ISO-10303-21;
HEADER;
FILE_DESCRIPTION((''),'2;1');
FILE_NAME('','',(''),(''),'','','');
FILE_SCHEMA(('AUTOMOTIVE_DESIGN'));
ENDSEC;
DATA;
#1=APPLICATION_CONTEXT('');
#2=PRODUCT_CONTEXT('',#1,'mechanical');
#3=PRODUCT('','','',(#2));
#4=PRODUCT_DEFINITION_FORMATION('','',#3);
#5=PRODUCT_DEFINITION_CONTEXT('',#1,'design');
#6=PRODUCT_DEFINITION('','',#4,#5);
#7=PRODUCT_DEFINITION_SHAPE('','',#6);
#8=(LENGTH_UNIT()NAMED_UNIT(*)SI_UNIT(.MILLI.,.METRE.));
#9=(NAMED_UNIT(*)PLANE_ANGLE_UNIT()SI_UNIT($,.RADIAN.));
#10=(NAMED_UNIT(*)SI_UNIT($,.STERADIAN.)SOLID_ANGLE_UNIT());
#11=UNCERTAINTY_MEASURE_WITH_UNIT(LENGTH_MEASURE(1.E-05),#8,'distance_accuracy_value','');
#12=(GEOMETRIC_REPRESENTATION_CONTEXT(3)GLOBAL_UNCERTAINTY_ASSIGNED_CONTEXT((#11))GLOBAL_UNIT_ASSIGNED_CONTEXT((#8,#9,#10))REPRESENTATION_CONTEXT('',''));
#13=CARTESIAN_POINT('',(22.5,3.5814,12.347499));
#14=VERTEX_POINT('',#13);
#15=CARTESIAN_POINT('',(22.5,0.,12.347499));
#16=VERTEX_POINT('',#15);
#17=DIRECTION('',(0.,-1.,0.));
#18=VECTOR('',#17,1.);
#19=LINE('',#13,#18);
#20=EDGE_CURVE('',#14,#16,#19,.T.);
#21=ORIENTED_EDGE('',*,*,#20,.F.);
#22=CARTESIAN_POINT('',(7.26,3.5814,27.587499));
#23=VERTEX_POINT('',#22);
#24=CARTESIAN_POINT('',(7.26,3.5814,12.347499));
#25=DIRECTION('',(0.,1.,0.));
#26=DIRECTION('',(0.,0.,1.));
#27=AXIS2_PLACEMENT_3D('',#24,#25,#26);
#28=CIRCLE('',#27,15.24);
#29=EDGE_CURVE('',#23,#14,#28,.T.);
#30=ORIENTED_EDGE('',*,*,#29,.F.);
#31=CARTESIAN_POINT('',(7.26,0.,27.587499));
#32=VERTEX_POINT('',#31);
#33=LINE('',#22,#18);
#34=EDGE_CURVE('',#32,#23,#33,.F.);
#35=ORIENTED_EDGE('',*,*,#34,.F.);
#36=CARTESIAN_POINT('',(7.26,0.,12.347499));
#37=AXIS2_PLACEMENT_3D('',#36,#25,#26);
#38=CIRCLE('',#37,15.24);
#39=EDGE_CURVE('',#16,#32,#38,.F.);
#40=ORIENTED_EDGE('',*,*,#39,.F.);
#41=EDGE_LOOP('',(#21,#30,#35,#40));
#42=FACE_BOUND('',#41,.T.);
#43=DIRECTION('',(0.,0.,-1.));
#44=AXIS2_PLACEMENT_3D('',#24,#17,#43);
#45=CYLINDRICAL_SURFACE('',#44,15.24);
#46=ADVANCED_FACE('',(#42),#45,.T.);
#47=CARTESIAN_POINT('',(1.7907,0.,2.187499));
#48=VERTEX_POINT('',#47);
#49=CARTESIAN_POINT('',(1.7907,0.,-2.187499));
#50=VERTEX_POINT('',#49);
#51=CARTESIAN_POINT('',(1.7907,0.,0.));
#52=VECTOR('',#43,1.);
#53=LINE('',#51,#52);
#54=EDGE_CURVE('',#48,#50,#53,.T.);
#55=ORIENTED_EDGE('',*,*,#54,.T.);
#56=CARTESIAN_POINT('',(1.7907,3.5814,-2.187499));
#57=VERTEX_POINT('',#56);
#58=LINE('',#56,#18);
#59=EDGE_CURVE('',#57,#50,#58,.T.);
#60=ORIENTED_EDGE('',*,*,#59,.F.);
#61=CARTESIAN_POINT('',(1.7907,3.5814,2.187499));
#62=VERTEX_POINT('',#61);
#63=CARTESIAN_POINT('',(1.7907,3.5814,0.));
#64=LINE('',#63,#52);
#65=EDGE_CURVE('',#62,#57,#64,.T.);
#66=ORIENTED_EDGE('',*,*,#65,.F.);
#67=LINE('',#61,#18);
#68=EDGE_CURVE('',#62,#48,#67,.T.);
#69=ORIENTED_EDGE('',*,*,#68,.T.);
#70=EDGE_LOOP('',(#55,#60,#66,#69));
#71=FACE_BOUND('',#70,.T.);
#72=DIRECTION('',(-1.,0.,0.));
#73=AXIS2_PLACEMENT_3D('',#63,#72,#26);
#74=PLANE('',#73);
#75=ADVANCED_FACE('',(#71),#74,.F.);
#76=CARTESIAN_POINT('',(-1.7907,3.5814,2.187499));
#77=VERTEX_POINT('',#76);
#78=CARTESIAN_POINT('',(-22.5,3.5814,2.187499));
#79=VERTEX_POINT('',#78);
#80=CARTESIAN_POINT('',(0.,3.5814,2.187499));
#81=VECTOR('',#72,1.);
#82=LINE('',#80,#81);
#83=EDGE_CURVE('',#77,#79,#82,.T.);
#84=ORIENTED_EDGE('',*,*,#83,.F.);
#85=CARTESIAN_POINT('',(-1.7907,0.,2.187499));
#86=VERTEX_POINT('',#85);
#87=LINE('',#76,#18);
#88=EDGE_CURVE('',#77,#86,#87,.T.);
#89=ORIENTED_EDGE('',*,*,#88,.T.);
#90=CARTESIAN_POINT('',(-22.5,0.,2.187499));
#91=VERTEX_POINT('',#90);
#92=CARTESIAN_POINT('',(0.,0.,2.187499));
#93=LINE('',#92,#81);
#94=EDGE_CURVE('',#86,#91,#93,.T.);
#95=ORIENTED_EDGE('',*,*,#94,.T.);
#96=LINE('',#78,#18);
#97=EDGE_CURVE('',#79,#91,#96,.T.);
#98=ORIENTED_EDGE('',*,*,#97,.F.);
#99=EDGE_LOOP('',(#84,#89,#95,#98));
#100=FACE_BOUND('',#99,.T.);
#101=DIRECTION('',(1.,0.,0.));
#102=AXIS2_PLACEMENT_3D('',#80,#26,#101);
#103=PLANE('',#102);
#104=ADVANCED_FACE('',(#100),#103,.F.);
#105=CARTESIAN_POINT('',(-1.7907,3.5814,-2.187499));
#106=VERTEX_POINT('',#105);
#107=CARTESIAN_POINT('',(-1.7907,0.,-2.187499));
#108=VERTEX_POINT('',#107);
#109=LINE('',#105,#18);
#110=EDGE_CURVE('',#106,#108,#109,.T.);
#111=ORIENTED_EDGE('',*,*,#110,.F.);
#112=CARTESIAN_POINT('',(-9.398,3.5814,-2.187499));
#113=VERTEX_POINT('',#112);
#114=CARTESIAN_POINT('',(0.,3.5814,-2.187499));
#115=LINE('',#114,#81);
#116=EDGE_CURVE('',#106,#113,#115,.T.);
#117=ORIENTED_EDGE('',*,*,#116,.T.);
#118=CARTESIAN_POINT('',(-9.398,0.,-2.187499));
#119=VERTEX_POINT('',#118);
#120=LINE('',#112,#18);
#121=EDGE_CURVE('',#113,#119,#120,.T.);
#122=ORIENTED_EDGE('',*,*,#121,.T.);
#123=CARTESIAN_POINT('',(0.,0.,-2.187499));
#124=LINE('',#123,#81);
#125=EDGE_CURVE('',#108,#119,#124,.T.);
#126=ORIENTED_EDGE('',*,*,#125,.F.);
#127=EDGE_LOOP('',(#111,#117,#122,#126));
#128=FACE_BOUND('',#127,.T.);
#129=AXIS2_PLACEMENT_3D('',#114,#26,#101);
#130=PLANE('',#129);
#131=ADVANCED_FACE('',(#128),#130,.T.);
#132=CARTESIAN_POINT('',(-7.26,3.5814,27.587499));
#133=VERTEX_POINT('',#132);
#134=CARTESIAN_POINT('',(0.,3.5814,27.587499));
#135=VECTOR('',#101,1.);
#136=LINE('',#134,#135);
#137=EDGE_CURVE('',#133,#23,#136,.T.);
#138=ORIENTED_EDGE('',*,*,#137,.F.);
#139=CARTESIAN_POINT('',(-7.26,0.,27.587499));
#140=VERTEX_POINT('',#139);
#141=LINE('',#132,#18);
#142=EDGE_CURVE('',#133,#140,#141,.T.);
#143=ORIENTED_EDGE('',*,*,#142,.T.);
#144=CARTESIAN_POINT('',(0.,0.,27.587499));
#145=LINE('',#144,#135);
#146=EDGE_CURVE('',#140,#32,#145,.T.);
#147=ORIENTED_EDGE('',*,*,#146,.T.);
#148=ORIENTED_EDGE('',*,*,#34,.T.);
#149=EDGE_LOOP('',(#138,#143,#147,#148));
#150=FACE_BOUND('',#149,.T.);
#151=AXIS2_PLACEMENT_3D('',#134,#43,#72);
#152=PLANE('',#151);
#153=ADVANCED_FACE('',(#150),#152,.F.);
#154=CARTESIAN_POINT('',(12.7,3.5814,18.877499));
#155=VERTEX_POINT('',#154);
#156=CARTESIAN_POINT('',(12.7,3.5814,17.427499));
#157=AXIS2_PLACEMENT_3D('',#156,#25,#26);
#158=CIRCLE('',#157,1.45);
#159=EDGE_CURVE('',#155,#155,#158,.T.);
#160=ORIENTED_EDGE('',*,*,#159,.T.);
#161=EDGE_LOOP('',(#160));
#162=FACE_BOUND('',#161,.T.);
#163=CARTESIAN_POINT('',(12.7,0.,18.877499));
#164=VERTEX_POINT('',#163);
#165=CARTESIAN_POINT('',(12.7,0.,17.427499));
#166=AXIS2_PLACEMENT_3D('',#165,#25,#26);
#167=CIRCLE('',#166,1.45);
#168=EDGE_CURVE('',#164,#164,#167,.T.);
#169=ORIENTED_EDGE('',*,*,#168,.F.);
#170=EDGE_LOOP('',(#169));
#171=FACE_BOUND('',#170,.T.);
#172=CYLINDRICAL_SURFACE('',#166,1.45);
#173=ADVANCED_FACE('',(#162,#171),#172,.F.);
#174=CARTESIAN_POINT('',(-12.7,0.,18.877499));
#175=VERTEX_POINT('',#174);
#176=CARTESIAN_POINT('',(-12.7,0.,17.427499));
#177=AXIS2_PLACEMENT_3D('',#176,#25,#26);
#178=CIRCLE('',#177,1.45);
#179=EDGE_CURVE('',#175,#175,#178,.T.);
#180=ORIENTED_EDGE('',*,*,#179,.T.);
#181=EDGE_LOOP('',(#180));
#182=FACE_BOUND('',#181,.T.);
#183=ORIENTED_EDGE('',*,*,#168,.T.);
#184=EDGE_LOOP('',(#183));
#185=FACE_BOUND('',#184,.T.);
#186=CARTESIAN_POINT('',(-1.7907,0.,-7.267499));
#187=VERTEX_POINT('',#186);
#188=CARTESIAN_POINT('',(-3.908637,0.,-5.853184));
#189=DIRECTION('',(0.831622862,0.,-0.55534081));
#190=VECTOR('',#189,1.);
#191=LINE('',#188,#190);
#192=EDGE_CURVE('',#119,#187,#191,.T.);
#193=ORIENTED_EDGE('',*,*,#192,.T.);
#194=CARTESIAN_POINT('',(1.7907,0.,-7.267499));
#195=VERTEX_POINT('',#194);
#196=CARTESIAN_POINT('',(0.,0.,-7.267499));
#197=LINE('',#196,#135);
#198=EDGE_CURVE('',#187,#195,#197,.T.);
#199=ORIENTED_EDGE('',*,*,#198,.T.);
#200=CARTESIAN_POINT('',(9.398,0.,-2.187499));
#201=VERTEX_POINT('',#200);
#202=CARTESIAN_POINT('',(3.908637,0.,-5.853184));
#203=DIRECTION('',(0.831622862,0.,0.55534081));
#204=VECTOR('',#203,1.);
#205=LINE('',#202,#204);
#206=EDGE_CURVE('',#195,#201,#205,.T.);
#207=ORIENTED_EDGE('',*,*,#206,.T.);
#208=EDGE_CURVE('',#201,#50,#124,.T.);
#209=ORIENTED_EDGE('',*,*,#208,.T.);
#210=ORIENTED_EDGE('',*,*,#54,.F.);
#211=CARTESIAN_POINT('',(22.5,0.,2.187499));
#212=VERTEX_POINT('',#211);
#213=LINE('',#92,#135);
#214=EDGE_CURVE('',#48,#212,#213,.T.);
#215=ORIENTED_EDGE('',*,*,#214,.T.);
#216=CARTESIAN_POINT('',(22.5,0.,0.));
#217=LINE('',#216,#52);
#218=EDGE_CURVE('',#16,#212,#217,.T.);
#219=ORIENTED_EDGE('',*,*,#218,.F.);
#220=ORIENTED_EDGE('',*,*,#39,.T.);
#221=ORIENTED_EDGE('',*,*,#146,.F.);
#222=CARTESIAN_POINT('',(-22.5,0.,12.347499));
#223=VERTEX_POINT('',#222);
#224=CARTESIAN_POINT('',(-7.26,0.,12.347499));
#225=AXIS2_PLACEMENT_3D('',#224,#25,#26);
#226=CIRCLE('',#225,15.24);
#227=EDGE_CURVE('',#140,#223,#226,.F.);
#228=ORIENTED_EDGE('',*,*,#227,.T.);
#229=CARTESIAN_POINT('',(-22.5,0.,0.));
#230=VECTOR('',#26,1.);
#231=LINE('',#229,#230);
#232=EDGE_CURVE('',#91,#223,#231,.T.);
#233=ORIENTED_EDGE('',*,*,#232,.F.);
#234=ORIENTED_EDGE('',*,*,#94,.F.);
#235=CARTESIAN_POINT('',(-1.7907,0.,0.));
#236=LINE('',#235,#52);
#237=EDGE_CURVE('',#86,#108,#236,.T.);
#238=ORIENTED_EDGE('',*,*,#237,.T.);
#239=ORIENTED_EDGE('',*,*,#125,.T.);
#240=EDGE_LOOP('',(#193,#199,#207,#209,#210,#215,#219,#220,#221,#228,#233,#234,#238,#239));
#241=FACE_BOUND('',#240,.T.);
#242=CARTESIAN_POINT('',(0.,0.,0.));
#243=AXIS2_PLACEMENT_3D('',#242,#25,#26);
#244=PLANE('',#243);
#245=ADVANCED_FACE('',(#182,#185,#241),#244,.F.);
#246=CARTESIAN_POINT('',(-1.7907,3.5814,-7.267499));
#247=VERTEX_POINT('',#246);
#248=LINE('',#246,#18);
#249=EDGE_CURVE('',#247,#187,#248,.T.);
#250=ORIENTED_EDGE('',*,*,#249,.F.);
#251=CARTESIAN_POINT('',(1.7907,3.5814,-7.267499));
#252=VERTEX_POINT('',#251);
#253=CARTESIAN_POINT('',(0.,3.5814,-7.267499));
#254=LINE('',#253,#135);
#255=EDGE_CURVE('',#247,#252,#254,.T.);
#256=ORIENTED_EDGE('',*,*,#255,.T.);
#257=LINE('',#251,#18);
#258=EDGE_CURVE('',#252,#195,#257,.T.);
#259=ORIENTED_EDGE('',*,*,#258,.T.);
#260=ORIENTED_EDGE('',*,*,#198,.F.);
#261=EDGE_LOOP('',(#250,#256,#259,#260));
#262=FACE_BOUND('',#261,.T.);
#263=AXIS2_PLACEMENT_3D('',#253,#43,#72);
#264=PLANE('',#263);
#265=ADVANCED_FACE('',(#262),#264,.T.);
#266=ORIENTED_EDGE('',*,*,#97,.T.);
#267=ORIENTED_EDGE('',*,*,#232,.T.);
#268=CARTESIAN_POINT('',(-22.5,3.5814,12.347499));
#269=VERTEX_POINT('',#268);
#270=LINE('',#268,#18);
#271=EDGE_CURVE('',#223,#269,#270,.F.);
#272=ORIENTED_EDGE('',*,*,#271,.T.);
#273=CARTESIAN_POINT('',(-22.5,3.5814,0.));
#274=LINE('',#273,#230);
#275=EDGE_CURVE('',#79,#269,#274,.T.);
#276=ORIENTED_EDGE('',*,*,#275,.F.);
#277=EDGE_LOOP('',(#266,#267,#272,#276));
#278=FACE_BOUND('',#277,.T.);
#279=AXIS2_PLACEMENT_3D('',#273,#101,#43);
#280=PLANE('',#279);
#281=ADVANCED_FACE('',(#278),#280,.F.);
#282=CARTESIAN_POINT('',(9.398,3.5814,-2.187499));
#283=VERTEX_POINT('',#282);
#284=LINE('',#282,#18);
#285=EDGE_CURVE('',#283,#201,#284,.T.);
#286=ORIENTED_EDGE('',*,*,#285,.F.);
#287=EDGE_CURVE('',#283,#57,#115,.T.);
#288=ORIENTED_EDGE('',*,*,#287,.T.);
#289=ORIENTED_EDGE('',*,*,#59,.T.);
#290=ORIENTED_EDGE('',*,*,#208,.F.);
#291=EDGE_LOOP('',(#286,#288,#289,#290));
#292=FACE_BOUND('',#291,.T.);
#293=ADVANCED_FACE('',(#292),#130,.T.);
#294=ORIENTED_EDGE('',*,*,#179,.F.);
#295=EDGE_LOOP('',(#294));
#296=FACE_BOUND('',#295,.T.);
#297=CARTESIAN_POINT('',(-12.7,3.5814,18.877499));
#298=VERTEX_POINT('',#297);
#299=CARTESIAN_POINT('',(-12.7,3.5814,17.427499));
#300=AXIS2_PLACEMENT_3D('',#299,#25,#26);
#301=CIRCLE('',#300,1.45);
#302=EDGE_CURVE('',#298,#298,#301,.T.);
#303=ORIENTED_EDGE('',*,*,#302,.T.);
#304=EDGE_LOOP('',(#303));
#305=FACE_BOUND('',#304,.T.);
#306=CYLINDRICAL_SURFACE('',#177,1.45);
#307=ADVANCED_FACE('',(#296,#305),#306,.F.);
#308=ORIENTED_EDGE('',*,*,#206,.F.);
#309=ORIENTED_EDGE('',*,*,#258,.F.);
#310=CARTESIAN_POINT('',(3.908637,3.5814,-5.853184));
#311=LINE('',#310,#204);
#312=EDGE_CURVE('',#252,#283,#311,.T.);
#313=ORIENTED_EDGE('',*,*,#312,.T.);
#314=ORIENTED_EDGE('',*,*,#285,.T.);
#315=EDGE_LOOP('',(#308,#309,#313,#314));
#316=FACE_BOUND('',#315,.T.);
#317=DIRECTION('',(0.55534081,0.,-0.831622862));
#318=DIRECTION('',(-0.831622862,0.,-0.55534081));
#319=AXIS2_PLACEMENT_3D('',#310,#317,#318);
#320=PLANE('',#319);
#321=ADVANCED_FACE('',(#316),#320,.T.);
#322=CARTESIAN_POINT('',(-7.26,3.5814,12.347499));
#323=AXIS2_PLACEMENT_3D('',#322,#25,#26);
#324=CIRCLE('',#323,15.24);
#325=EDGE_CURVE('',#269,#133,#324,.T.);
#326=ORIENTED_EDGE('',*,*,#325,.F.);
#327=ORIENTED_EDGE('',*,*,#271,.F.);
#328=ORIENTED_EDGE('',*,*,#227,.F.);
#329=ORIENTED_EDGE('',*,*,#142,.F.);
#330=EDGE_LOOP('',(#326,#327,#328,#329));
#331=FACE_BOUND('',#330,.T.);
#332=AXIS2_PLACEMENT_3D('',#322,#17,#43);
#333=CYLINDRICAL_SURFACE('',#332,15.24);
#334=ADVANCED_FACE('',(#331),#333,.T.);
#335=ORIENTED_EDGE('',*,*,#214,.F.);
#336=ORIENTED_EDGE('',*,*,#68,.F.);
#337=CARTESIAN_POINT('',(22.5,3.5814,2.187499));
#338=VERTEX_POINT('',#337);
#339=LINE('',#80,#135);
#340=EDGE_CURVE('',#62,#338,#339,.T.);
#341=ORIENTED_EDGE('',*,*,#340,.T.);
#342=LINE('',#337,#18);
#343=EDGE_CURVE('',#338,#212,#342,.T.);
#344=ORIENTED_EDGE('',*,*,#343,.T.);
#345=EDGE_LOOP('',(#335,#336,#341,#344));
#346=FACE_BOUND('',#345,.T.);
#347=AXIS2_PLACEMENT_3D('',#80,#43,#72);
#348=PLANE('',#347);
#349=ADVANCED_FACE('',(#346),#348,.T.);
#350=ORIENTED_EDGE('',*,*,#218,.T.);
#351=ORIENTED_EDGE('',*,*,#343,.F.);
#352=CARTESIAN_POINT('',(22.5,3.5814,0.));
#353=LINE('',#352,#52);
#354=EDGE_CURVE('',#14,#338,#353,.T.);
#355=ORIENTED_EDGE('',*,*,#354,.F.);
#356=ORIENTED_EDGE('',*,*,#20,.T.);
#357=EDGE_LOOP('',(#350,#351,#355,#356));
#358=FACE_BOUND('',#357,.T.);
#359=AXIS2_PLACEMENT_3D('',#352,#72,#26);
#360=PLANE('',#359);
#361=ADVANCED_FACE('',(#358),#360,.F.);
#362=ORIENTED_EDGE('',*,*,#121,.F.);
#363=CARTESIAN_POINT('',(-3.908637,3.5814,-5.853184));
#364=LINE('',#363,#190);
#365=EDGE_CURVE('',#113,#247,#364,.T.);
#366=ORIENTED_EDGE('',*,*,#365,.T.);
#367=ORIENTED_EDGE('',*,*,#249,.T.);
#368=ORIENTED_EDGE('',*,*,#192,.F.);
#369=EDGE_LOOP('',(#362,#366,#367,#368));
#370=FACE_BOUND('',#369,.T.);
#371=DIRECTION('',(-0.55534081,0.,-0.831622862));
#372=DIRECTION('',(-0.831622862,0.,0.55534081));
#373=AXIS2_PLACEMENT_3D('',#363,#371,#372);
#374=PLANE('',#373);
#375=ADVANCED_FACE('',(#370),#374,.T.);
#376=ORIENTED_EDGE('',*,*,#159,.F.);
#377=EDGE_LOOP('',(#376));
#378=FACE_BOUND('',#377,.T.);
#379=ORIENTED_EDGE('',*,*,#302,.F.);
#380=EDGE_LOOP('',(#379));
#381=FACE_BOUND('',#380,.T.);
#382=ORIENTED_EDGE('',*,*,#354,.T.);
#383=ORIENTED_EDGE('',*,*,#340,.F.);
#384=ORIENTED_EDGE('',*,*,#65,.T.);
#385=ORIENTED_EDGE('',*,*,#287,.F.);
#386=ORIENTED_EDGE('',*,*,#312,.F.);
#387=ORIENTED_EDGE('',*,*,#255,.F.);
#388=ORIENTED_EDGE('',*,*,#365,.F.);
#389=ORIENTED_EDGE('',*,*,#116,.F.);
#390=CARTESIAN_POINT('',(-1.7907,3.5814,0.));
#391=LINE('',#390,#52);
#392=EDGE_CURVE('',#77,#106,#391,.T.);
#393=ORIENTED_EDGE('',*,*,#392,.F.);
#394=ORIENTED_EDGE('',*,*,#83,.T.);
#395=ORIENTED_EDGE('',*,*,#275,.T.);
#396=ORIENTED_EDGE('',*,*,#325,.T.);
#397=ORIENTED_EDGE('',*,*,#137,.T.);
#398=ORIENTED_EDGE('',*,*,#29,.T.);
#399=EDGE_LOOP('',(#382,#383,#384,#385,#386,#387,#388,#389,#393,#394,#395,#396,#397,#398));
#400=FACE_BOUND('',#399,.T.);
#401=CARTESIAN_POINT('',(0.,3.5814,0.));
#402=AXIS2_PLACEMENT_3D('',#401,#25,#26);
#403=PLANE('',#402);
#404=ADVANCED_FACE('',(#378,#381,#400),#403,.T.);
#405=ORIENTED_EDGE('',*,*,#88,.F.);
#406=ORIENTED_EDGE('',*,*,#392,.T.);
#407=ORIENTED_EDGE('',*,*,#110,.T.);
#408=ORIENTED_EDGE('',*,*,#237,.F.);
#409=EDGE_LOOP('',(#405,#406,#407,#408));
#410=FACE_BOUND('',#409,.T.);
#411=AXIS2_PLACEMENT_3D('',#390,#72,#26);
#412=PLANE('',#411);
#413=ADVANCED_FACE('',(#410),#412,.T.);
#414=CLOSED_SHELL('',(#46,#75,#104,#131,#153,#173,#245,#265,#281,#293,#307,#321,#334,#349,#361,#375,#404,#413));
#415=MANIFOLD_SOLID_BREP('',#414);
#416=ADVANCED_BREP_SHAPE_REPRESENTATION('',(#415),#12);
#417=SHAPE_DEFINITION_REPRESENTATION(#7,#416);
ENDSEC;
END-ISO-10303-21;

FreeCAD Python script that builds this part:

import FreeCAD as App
import Part
import Sketcher
from FreeCAD import Vector
Q = App.Units.Quantity


def edges_at(feature, points):
    """Names of the edges that pass closest to the given points."""
    edges = feature.Shape.Edges
    near = lambda p: min(range(len(edges)), key=lambda i: edges[i].distToShape(Part.Vertex(*p))[0])
    return sorted({f"Edge{near(p) + 1}" for p in points})

doc = App.newDocument("Part")
params = doc.addObject("Spreadsheet::Sheet", "Params")
for row, (alias, value) in enumerate([
    ("sketch1_height", "1 in"),
    ("sketch1_width", "0.141 in"),
    ("pad1_length", "0.141 in"),
    ("fillet_radius", "0.6 in"),
], start=1):
    params.set(f"A{row}", alias)
    params.set(f"B{row}", "=" + value)
    params.setAlias(f"B{row}", alias)

body = doc.addObject("PartDesign::Body", "Body")

sketch1 = doc.addObject("Sketcher::SketchObject", "Sketch")
body.addObject(sketch1)
sketch1.AttachmentSupport = (doc.XZ_Plane, [""])
sketch1.MapMode = "FlatFace"
sketch1.addGeometry([
    Part.LineSegment(Vector(-22.5, 27.587499, 0), Vector(22.5, 27.587499, 0)),
    Part.LineSegment(Vector(22.5, 27.587499, 0), Vector(22.5, 2.187499, 0)),
    Part.LineSegment(Vector(22.5, 2.187499, 0), Vector(1.7907, 2.187499, 0)),
    Part.LineSegment(Vector(1.7907, 2.187499, 0), Vector(1.7907, -2.187499, 0)),
    Part.LineSegment(Vector(1.7907, -2.187499, 0), Vector(9.398, -2.187499, 0)),
    Part.LineSegment(Vector(9.398, -2.187499, 0), Vector(1.7907, -7.267499, 0)),
    Part.LineSegment(Vector(1.7907, -7.267499, 0), Vector(-1.7907, -7.267499, 0)),
    Part.LineSegment(Vector(-1.7907, -7.267499, 0), Vector(-9.398, -2.187499, 0)),
    Part.LineSegment(Vector(-9.398, -2.187499, 0), Vector(-1.7907, -2.187499, 0)),
    Part.LineSegment(Vector(-1.7907, -2.187499, 0), Vector(-1.7907, 2.187499, 0)),
    Part.LineSegment(Vector(-1.7907, 2.187499, 0), Vector(-22.5, 2.187499, 0)),
    Part.LineSegment(Vector(-22.5, 2.187499, 0), Vector(-22.5, 27.587499, 0)),
], False)
sketch1.addConstraint([
    Sketcher.Constraint("Coincident", 0, 2, 1, 1),
    Sketcher.Constraint("Coincident", 1, 2, 2, 1),
    Sketcher.Constraint("Coincident", 2, 2, 3, 1),
    Sketcher.Constraint("Coincident", 3, 2, 4, 1),
    Sketcher.Constraint("Coincident", 4, 2, 5, 1),
    Sketcher.Constraint("Coincident", 5, 2, 6, 1),
    Sketcher.Constraint("Coincident", 6, 2, 7, 1),
    Sketcher.Constraint("Coincident", 7, 2, 8, 1),
    Sketcher.Constraint("Coincident", 8, 2, 9, 1),
    Sketcher.Constraint("Coincident", 9, 2, 10, 1),
    Sketcher.Constraint("Coincident", 10, 2, 11, 1),
    Sketcher.Constraint("Coincident", 11, 2, 0, 1),
    Sketcher.Constraint("Horizontal", 0),
    Sketcher.Constraint("Vertical", 1),
    Sketcher.Constraint("Horizontal", 2),
    Sketcher.Constraint("Vertical", 3),
    Sketcher.Constraint("Horizontal", 4),
    Sketcher.Constraint("Horizontal", 6),
    Sketcher.Constraint("Horizontal", 8),
    Sketcher.Constraint("Vertical", 9),
    Sketcher.Constraint("Horizontal", 10),
    Sketcher.Constraint("Vertical", 11),
    Sketcher.Constraint("Symmetric", 2, 2, 8, 2, -1, 1),
    Sketcher.Constraint("Symmetric", 4, 2, 7, 2, -2),
    Sketcher.Constraint("Symmetric", 1, 2, 10, 2, -2),
    Sketcher.Constraint("Vertical", 3, 2, 5, 2),
    Sketcher.Constraint("Vertical", 6, 2, 8, 2),
    Sketcher.Constraint("DistanceY", 1, 2, 1, 1, Q("1 in")),
    Sketcher.Constraint("DistanceY", 5, 2, 3, 2, Q("0.2 in")),
    Sketcher.Constraint("DistanceX", 6, 2, 6, 1, Q("0.141 in")),
    Sketcher.Constraint("DistanceX", -1, 1, 4, 2, Q("0.37 in")),
    Sketcher.Constraint("DistanceX", 0, 1, 0, 2, Q("45 mm")),
    Sketcher.Constraint("DistanceY", -1, 1, 0, 2, Q("27.587499 mm")),
])
sketch1.setExpression("Constraints[27]", "Params.sketch1_height")
sketch1.setExpression("Constraints[29]", "Params.sketch1_width")
pad1 = doc.addObject("PartDesign::Pad", "Pad")
body.addObject(pad1)
pad1.Profile = sketch1
pad1.setExpression("Length", "Params.pad1_length")
pad1.Reversed = True

sketch2 = doc.addObject("Sketcher::SketchObject", "Sketch001")
body.addObject(sketch2)
sketch2.AttachmentSupport = (doc.XZ_Plane, [""])
sketch2.MapMode = "FlatFace"
sketch2.AttachmentOffset = App.Placement(Vector(0, 0, -0.141 * 25.4), App.Rotation())
sketch2.addGeometry([
    Part.Circle(Vector(-12.7, 17.427499, 0), Vector(0, 0, 1), 1.45),
    Part.Circle(Vector(12.7, 17.427499, 0), Vector(0, 0, 1), 1.45),
], False)
sketch2.addConstraint([
    Sketcher.Constraint("Equal", 0, 1),
    Sketcher.Constraint("Symmetric", 0, 3, 1, 3, -2),
    Sketcher.Constraint("DistanceX", 0, 3, 1, 3, Q("1 in")),
    Sketcher.Constraint("Diameter", 0, Q("2.9 mm")),
    Sketcher.Constraint("DistanceY", -1, 1, 0, 3, Q("17.427499 mm")),
])
pocket1 = doc.addObject("PartDesign::Pocket", "Pocket")
body.addObject(pocket1)
pocket1.Profile = sketch2
pocket1.Type = "ThroughAll"
pocket1.Reversed = True
doc.recompute()

fillet = doc.addObject("PartDesign::Fillet", "Fillet")
body.addObject(fillet)
fillet.Base = (pocket1, edges_at(pocket1, [(-22.5, 1.791, 27.587), (22.5, 1.791, 27.587)]))
fillet.setExpression("Radius", "Params.fillet_radius")

doc.recompute()
